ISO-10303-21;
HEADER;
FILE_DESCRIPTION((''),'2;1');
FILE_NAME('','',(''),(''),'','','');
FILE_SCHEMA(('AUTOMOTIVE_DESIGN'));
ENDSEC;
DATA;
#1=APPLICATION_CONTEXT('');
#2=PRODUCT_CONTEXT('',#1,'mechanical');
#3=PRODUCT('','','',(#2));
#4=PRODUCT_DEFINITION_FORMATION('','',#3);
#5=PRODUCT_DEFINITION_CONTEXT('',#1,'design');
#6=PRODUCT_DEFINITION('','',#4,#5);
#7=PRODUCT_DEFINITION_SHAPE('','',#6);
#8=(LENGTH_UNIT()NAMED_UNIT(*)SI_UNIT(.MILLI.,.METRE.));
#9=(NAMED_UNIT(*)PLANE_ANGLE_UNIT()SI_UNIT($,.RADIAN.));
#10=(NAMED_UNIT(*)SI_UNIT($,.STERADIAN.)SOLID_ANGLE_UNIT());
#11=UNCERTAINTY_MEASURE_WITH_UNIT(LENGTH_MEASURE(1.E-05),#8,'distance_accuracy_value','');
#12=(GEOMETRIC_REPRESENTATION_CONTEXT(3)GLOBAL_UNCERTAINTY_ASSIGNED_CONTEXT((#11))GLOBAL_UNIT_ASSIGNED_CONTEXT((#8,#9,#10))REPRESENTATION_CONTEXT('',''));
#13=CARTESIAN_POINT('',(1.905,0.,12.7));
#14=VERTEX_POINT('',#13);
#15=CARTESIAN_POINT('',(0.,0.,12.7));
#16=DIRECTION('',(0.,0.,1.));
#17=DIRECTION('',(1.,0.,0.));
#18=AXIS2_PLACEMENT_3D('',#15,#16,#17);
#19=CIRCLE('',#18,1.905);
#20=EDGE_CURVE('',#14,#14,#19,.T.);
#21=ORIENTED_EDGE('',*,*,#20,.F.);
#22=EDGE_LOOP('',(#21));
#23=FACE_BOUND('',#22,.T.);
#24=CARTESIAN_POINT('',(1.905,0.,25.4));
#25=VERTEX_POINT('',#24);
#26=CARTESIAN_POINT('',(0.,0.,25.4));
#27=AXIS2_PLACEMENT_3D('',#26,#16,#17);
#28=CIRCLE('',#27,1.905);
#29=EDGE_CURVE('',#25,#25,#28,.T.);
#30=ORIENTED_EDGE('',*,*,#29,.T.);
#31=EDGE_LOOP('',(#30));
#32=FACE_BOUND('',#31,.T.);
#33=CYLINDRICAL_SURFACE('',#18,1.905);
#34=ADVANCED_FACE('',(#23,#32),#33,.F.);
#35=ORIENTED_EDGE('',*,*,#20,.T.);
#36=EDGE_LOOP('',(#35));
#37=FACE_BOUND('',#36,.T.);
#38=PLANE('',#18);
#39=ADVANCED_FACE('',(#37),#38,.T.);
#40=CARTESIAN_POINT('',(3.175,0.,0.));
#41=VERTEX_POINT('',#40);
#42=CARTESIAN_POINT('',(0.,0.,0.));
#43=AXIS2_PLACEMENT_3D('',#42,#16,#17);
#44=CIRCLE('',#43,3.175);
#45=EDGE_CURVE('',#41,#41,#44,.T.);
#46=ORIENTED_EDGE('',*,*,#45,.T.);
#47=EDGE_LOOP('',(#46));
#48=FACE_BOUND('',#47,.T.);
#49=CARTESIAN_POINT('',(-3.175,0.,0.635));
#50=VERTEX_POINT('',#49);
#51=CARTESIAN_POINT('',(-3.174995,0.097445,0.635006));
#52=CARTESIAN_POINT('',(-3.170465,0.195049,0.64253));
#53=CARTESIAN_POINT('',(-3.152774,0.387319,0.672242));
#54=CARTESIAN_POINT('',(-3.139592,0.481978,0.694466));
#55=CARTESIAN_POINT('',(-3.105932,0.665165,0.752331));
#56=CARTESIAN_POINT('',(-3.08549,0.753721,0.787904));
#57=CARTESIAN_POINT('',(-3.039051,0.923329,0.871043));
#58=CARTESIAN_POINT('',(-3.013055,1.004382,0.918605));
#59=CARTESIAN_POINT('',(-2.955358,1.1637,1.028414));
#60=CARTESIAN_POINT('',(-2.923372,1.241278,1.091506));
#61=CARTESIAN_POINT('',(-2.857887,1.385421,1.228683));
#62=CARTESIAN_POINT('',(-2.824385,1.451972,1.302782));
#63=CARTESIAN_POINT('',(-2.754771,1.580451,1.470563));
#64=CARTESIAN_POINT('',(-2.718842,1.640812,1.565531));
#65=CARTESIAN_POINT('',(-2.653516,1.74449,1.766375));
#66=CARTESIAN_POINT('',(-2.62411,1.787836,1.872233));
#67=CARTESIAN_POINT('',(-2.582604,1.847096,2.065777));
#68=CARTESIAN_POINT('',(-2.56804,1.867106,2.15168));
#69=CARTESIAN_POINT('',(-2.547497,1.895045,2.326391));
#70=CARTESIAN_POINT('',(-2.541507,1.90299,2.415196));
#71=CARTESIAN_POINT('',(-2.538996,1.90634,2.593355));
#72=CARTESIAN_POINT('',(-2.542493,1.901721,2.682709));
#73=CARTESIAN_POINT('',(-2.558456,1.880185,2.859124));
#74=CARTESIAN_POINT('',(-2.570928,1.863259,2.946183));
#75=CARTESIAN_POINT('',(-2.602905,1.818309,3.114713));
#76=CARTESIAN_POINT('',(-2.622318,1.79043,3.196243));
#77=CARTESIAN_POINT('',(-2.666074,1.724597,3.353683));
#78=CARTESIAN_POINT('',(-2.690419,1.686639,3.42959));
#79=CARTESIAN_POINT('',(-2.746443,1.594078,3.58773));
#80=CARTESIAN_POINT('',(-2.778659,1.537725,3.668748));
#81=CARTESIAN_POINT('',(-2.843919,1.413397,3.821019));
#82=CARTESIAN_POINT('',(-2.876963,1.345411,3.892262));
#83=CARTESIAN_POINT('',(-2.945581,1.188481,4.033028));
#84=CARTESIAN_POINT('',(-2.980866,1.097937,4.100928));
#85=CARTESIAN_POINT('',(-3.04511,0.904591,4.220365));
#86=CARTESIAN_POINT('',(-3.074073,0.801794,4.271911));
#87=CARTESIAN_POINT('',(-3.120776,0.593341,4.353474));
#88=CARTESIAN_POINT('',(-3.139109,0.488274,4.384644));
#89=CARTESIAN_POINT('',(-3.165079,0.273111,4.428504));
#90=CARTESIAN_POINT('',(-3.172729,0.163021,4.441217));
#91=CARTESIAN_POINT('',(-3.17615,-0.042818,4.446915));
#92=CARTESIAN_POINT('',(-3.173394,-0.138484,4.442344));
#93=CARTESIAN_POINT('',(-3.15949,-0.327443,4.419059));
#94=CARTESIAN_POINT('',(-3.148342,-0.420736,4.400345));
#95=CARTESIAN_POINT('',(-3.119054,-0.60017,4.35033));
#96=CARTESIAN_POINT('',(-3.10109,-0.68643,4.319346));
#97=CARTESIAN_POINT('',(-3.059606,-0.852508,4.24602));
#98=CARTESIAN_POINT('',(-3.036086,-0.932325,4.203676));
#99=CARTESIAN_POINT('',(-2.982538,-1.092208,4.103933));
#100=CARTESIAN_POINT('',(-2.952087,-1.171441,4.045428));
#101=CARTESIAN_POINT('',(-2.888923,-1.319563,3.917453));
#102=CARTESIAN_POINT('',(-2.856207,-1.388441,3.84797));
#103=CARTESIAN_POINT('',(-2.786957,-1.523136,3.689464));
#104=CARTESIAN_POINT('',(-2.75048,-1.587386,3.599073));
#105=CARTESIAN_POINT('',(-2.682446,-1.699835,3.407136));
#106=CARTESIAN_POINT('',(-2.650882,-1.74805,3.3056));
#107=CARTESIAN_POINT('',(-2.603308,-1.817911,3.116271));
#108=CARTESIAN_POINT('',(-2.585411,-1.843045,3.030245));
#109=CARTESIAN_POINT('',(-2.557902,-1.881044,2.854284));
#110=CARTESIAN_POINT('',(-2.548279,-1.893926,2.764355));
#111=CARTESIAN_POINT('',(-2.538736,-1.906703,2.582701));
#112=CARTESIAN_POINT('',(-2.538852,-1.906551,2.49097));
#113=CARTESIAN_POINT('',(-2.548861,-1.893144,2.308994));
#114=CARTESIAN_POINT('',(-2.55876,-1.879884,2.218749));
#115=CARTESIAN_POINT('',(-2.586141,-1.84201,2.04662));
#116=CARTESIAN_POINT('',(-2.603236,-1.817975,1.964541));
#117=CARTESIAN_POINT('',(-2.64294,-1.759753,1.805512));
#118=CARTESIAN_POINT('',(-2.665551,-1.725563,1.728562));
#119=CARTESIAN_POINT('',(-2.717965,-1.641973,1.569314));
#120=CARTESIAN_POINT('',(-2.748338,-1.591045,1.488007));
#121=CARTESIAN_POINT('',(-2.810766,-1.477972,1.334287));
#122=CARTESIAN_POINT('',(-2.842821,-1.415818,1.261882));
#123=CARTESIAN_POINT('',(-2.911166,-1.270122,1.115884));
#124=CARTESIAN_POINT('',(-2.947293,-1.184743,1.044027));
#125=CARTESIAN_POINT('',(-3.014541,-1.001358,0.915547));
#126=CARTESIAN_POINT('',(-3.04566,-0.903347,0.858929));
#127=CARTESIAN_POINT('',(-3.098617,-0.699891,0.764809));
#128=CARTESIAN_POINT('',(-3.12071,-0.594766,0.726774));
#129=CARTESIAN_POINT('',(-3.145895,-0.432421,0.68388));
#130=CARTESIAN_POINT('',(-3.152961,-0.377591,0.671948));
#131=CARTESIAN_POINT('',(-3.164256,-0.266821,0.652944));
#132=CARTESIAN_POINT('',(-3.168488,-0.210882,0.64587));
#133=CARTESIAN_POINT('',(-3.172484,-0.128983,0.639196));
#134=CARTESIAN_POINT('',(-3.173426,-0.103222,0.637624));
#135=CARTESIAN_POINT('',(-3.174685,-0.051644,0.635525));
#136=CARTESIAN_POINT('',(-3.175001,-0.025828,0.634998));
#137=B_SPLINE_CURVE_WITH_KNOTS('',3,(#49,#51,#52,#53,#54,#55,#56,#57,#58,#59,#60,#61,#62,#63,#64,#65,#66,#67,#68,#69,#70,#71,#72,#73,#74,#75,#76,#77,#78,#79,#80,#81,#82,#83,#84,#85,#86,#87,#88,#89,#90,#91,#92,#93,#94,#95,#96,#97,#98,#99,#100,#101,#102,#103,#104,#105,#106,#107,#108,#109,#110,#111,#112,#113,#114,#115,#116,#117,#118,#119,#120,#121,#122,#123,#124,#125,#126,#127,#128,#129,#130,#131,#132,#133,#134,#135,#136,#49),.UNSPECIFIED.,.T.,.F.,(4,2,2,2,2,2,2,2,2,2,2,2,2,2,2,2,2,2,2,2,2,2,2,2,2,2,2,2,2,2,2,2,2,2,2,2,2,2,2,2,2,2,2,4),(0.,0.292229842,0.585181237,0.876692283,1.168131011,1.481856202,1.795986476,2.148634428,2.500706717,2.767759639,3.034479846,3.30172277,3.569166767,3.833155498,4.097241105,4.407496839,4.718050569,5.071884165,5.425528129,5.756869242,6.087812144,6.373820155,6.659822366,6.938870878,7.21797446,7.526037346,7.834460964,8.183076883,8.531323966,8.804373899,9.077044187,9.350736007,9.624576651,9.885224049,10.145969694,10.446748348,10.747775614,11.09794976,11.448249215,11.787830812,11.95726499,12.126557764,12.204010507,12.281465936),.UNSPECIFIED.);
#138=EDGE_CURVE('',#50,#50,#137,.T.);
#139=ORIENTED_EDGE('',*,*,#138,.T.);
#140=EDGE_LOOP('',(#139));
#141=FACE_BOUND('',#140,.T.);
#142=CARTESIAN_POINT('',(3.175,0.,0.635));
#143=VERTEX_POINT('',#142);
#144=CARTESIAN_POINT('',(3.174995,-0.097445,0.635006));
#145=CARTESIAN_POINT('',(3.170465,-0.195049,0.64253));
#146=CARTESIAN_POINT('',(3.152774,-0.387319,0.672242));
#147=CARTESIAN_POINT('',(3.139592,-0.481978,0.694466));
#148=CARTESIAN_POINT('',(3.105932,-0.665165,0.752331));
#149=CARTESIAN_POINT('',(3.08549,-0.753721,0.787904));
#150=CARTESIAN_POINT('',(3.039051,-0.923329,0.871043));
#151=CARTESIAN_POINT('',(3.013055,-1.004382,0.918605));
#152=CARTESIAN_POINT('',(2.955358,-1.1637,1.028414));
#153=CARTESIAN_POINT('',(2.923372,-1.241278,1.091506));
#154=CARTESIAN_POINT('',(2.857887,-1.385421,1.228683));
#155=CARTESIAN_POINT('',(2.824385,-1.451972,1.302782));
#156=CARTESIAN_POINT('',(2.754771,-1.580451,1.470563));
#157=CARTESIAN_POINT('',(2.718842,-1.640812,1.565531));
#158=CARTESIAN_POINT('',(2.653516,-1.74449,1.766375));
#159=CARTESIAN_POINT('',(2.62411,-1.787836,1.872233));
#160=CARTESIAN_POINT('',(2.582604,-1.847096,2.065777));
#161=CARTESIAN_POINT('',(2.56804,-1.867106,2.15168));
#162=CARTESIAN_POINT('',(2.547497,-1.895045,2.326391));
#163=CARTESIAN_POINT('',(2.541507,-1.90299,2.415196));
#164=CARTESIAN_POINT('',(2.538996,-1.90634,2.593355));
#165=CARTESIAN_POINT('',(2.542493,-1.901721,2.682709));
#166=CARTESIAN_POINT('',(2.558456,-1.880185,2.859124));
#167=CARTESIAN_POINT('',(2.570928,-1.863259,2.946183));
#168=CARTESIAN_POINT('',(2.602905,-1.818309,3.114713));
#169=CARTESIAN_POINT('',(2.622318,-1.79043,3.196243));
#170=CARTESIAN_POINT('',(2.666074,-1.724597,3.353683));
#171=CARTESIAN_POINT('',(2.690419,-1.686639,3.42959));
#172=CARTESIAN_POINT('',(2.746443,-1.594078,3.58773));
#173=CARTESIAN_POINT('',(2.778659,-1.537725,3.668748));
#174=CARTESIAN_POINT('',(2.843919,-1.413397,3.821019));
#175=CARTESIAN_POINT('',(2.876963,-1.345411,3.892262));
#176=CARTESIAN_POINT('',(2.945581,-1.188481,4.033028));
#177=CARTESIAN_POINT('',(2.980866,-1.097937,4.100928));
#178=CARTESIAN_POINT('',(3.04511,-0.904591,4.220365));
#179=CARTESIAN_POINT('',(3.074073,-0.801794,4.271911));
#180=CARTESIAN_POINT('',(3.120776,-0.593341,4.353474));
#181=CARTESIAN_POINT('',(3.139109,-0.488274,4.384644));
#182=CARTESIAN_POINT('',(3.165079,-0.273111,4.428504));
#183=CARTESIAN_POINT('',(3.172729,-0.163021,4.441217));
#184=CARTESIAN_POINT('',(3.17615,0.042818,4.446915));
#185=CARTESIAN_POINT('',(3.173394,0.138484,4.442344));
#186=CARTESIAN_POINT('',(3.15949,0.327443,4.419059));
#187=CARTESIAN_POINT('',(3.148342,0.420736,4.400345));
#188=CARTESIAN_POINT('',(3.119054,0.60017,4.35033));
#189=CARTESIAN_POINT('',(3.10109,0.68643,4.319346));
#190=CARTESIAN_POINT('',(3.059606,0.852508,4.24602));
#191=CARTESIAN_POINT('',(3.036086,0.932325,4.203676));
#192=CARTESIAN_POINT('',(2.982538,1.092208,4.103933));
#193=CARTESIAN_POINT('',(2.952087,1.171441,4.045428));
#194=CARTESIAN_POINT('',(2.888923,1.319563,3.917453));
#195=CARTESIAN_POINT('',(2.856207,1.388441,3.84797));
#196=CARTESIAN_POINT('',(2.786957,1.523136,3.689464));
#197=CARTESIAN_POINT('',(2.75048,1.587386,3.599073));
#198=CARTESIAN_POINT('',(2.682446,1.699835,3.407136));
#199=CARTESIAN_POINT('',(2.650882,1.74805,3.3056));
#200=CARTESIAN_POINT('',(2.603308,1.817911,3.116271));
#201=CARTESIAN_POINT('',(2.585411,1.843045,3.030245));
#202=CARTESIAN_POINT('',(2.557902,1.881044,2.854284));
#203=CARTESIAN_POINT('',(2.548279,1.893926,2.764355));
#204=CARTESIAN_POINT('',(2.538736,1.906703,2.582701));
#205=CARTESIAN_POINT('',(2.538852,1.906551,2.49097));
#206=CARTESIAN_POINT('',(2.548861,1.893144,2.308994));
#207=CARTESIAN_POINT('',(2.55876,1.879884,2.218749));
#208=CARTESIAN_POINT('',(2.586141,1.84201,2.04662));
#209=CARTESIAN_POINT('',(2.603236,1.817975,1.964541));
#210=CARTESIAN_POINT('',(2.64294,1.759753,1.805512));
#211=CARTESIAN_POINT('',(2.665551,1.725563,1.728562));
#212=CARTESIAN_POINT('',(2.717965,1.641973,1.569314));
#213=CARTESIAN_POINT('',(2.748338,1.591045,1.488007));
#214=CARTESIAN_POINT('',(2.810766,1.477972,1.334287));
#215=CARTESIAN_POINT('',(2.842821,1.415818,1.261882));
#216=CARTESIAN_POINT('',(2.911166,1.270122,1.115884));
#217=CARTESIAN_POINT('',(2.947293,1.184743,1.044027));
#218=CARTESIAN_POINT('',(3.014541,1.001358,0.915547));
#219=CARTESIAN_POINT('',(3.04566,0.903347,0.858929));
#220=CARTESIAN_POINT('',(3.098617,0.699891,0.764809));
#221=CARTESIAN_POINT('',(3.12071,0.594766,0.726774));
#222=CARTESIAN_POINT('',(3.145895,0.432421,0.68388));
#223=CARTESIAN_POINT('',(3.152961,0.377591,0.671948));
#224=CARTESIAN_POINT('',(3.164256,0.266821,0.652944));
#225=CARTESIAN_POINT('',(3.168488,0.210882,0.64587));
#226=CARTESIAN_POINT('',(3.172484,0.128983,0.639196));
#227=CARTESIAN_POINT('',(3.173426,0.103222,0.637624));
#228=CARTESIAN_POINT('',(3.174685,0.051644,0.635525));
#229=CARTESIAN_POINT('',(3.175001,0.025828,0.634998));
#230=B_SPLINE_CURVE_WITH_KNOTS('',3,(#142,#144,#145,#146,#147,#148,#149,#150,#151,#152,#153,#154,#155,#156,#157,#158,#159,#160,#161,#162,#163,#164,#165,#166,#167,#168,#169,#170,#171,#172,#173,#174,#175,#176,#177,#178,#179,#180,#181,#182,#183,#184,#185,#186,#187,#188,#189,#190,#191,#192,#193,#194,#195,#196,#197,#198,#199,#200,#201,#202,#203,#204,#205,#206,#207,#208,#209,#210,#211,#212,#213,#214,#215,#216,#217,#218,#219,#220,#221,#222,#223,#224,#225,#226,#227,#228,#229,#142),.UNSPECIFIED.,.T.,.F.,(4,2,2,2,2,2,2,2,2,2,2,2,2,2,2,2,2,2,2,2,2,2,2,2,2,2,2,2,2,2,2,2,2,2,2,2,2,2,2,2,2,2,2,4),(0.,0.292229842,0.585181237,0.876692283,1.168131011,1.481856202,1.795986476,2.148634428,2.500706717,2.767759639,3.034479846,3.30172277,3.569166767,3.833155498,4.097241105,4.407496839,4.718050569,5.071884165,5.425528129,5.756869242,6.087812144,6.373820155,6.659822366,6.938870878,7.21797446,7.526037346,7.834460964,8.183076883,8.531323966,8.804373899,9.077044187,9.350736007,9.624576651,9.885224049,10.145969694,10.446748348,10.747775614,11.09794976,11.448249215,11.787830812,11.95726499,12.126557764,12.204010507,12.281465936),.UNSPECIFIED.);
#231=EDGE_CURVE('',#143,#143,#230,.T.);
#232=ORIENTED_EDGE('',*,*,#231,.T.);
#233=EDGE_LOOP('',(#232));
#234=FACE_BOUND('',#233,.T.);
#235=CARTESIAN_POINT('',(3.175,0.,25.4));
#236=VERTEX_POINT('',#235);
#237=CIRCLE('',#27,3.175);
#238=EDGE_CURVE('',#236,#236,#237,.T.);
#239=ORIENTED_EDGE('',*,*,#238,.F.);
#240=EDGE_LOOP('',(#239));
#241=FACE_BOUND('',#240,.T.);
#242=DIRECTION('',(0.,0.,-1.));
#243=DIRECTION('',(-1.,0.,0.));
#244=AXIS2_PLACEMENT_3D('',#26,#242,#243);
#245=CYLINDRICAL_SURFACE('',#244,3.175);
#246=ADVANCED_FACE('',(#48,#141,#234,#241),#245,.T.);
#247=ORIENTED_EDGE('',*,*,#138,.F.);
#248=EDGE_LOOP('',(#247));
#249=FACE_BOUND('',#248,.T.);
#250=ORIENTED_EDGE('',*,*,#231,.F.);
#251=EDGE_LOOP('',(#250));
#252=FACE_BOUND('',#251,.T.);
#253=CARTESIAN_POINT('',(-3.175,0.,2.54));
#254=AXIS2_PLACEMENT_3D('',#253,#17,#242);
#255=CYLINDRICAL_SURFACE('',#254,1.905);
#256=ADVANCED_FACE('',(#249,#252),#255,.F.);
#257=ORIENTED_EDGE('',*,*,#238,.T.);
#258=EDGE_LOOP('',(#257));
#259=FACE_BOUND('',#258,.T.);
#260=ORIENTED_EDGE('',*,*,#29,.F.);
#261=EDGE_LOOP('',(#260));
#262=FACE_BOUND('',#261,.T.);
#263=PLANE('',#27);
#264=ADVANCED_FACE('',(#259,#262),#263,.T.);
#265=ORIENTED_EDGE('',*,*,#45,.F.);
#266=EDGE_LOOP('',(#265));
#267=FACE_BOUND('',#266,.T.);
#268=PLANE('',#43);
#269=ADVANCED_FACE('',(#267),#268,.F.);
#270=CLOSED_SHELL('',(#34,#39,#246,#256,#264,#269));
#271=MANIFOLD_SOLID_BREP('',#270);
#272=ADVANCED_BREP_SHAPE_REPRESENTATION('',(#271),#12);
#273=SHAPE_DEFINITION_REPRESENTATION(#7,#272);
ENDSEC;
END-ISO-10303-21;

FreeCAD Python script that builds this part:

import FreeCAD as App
import Part
import Sketcher
from FreeCAD import Vector
Q = App.Units.Quantity

doc = App.newDocument("Part")
body = doc.addObject("PartDesign::Body", "Body")

# Sketch on XY plane
sketch1 = body.newObject("Sketcher::SketchObject", "Sketch")
sketch1.AttachmentSupport = (doc.getObject("XY_Plane"), [""])
sketch1.MapMode = "FlatFace"
sketch1.addGeometry(Part.Circle(Vector(0, 0, 0), Vector(0, 0, 1), 3.2), False)
sketch1.addConstraint([
    Sketcher.Constraint("Coincident", 0, 3, -1, 1),
    Sketcher.Constraint("Diameter", 0, Q("0.25 in")),
])
pad1 = body.newObject("PartDesign::Pad", "Pad")
pad1.Profile = sketch1
pad1.Length = Q("1 in")

# Sketch on XY plane
sketch2 = body.newObject("Sketcher::SketchObject", "Sketch001")
sketch2.AttachmentSupport = (doc.getObject("XY_Plane"), [""])
sketch2.MapMode = "FlatFace"
sketch2.AttachmentOffset = App.Placement(Vector(0, 0, 1 * 25.4), App.Rotation())
sketch2.addGeometry(Part.Circle(Vector(0, 0, 0), Vector(0, 0, 1), 1.9), False)
sketch2.addConstraint([
    Sketcher.Constraint("Coincident", 0, 3, -1, 1),
    Sketcher.Constraint("Diameter", 0, Q("0.15 in")),
])
pocket1 = body.newObject("PartDesign::Pocket", "Pocket")
pocket1.Profile = sketch2
pocket1.Length = Q("0.5 in")

# Sketch on YZ plane
sketch3 = body.newObject("Sketcher::SketchObject", "Sketch002")
sketch3.AttachmentSupport = (doc.getObject("YZ_Plane"), [""])
sketch3.MapMode = "FlatFace"
sketch3.addGeometry(Part.Circle(Vector(0, 2.5, 0), Vector(0, 0, 1), 1.9), False)
sketch3.addConstraint([
    Sketcher.Constraint("PointOnObject", 0, 3, -2),
    Sketcher.Constraint("Diameter", 0, Q("0.15 in")),
    Sketcher.Constraint("DistanceY", -1, 1, 0, 3, Q("0.1 in")),
])
pocket2 = body.newObject("PartDesign::Pocket", "Pocket001")
pocket2.Profile = sketch3
pocket2.Type = "ThroughAll"
pocket2.Midplane = True

doc.recompute()
